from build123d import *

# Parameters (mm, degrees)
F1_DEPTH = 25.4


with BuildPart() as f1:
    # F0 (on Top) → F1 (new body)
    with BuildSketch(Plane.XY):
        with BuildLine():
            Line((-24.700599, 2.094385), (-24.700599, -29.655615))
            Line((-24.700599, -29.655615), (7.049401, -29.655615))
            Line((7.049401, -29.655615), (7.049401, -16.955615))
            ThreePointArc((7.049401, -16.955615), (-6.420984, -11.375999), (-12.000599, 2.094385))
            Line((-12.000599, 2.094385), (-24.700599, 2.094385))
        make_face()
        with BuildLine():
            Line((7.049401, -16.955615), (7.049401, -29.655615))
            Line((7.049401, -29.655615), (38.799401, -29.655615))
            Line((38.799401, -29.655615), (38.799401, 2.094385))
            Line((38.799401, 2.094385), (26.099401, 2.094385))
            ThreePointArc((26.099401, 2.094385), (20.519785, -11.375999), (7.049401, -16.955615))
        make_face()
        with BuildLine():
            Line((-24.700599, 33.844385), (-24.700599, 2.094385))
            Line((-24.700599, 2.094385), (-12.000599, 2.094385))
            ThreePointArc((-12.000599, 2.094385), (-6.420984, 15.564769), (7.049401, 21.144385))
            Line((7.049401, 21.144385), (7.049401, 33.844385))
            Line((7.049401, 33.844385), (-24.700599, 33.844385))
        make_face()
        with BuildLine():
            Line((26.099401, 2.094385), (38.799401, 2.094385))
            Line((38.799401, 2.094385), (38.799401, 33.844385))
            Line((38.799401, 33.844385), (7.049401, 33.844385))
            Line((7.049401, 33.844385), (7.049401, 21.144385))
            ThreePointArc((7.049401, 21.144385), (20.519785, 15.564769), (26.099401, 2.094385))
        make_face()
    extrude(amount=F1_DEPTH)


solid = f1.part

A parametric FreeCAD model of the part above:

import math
import FreeCAD as App
import Part
import Sketcher
Q = App.Units.Quantity


def add_polygon(sketch, points):
    """Adds a closed chain of lines whose ends are joined by coincident constraints."""
    first, n = sketch.GeometryCount, len(points)
    for a, b in zip(points, points[1:] + points[:1]):
        sketch.addGeometry(Part.LineSegment(App.Vector(*a, 0), App.Vector(*b, 0)), False)
    for i in range(n):
        sketch.addConstraint(Sketcher.Constraint("Coincident", first + i, 2, first + (i + 1) % n, 1))

doc = App.newDocument("Part")
params = doc.addObject("Spreadsheet::Sheet", "Params")
for row, (alias, value) in enumerate([
    ("sketch1_radius", "0.75 in"),
    ("sketch1_width", "2.5 in"),
    ("pad1_length", "1 in"),
], start=1):
    params.set(f"A{row}", alias)
    params.set(f"B{row}", "=" + value)
    params.setAlias(f"B{row}", alias)

body = doc.addObject("PartDesign::Body", "Body")

# Sketch on XY plane
sketch1 = body.newObject("Sketcher::SketchObject", "Sketch")
sketch1.AttachmentSupport = (doc.getObject("XY_Plane"), [""])
sketch1.MapMode = "FlatFace"
add_polygon(sketch1, [(-24.700599, -29.655615), (38.799401, -29.655615), (38.799401, 33.844385), (-24.700599, 33.844385)])  # lines 0-3
sketch1.addGeometry(Part.ArcOfCircle(Part.Circle(App.Vector(7.0494, 2.094386, 0), App.Vector(0, 0, 1), 19.050001), math.radians(-89.999998), math.radians(-0.000002)), False)  # 4
sketch1.addGeometry(Part.ArcOfCircle(Part.Circle(App.Vector(7.0494, 2.094384, 0), App.Vector(0, 0, 1), 19.049999), math.radians(179.999997), math.radians(270.000003)), False)  # 5
sketch1.addGeometry(Part.ArcOfCircle(Part.Circle(App.Vector(7.0494, 2.094386, 0), App.Vector(0, 0, 1), 19.049999), math.radians(89.999997), math.radians(180.000003)), False)  # 6
sketch1.addGeometry(Part.ArcOfCircle(Part.Circle(App.Vector(7.0494, 2.094384, 0), App.Vector(0, 0, 1), 19.050001), math.radians(0.000002), math.radians(89.999998)), False)  # 7
sketch1.addConstraint([
    Sketcher.Constraint("Tangent", 4, 1, 5, 2),
    Sketcher.Constraint("Tangent", 5, 1, 6, 2),
    Sketcher.Constraint("Tangent", 6, 1, 7, 2),
    Sketcher.Constraint("Tangent", 7, 1, 4, 2),
    Sketcher.Constraint("Horizontal", 0),
    Sketcher.Constraint("Vertical", 1),
    Sketcher.Constraint("Horizontal", 2),
    Sketcher.Constraint("Vertical", 3),
    Sketcher.Constraint("Equal", 4, 5),
    Sketcher.Constraint("Horizontal", 7, 3, 5, 1),
    Sketcher.Constraint("Horizontal", 5, 1, 7, 1),
    Sketcher.Constraint("Vertical", 7, 3, 4, 1),
    Sketcher.Constraint("Vertical", 4, 1, 6, 1),
    Sketcher.Constraint("Equal", 2, 1),
    Sketcher.Constraint("Radius", 4, Q("0.75 in")),
    Sketcher.Constraint("DistanceX", 0, 1, 0, 2, Q("2.5 in")),
    Sketcher.Constraint("DistanceY", 3, 2, 4, 1, Q("0.5 in")),
    Sketcher.Constraint("DistanceX", 7, 3, 0, 2, Q("1.25 in")),
    Sketcher.Constraint("DistanceX", -1, 1, 4, 3, 7.0494),
    Sketcher.Constraint("DistanceY", -1, 1, 4, 3, 2.094386),
])
sketch1.setExpression("Constraints[18]", "Params.sketch1_radius")
sketch1.setExpression("Constraints[19]", "Params.sketch1_width")
pad1 = body.newObject("PartDesign::Pad", "Pad")
pad1.Profile = sketch1
pad1.setExpression("Length", "Params.pad1_length")

doc.recompute()
